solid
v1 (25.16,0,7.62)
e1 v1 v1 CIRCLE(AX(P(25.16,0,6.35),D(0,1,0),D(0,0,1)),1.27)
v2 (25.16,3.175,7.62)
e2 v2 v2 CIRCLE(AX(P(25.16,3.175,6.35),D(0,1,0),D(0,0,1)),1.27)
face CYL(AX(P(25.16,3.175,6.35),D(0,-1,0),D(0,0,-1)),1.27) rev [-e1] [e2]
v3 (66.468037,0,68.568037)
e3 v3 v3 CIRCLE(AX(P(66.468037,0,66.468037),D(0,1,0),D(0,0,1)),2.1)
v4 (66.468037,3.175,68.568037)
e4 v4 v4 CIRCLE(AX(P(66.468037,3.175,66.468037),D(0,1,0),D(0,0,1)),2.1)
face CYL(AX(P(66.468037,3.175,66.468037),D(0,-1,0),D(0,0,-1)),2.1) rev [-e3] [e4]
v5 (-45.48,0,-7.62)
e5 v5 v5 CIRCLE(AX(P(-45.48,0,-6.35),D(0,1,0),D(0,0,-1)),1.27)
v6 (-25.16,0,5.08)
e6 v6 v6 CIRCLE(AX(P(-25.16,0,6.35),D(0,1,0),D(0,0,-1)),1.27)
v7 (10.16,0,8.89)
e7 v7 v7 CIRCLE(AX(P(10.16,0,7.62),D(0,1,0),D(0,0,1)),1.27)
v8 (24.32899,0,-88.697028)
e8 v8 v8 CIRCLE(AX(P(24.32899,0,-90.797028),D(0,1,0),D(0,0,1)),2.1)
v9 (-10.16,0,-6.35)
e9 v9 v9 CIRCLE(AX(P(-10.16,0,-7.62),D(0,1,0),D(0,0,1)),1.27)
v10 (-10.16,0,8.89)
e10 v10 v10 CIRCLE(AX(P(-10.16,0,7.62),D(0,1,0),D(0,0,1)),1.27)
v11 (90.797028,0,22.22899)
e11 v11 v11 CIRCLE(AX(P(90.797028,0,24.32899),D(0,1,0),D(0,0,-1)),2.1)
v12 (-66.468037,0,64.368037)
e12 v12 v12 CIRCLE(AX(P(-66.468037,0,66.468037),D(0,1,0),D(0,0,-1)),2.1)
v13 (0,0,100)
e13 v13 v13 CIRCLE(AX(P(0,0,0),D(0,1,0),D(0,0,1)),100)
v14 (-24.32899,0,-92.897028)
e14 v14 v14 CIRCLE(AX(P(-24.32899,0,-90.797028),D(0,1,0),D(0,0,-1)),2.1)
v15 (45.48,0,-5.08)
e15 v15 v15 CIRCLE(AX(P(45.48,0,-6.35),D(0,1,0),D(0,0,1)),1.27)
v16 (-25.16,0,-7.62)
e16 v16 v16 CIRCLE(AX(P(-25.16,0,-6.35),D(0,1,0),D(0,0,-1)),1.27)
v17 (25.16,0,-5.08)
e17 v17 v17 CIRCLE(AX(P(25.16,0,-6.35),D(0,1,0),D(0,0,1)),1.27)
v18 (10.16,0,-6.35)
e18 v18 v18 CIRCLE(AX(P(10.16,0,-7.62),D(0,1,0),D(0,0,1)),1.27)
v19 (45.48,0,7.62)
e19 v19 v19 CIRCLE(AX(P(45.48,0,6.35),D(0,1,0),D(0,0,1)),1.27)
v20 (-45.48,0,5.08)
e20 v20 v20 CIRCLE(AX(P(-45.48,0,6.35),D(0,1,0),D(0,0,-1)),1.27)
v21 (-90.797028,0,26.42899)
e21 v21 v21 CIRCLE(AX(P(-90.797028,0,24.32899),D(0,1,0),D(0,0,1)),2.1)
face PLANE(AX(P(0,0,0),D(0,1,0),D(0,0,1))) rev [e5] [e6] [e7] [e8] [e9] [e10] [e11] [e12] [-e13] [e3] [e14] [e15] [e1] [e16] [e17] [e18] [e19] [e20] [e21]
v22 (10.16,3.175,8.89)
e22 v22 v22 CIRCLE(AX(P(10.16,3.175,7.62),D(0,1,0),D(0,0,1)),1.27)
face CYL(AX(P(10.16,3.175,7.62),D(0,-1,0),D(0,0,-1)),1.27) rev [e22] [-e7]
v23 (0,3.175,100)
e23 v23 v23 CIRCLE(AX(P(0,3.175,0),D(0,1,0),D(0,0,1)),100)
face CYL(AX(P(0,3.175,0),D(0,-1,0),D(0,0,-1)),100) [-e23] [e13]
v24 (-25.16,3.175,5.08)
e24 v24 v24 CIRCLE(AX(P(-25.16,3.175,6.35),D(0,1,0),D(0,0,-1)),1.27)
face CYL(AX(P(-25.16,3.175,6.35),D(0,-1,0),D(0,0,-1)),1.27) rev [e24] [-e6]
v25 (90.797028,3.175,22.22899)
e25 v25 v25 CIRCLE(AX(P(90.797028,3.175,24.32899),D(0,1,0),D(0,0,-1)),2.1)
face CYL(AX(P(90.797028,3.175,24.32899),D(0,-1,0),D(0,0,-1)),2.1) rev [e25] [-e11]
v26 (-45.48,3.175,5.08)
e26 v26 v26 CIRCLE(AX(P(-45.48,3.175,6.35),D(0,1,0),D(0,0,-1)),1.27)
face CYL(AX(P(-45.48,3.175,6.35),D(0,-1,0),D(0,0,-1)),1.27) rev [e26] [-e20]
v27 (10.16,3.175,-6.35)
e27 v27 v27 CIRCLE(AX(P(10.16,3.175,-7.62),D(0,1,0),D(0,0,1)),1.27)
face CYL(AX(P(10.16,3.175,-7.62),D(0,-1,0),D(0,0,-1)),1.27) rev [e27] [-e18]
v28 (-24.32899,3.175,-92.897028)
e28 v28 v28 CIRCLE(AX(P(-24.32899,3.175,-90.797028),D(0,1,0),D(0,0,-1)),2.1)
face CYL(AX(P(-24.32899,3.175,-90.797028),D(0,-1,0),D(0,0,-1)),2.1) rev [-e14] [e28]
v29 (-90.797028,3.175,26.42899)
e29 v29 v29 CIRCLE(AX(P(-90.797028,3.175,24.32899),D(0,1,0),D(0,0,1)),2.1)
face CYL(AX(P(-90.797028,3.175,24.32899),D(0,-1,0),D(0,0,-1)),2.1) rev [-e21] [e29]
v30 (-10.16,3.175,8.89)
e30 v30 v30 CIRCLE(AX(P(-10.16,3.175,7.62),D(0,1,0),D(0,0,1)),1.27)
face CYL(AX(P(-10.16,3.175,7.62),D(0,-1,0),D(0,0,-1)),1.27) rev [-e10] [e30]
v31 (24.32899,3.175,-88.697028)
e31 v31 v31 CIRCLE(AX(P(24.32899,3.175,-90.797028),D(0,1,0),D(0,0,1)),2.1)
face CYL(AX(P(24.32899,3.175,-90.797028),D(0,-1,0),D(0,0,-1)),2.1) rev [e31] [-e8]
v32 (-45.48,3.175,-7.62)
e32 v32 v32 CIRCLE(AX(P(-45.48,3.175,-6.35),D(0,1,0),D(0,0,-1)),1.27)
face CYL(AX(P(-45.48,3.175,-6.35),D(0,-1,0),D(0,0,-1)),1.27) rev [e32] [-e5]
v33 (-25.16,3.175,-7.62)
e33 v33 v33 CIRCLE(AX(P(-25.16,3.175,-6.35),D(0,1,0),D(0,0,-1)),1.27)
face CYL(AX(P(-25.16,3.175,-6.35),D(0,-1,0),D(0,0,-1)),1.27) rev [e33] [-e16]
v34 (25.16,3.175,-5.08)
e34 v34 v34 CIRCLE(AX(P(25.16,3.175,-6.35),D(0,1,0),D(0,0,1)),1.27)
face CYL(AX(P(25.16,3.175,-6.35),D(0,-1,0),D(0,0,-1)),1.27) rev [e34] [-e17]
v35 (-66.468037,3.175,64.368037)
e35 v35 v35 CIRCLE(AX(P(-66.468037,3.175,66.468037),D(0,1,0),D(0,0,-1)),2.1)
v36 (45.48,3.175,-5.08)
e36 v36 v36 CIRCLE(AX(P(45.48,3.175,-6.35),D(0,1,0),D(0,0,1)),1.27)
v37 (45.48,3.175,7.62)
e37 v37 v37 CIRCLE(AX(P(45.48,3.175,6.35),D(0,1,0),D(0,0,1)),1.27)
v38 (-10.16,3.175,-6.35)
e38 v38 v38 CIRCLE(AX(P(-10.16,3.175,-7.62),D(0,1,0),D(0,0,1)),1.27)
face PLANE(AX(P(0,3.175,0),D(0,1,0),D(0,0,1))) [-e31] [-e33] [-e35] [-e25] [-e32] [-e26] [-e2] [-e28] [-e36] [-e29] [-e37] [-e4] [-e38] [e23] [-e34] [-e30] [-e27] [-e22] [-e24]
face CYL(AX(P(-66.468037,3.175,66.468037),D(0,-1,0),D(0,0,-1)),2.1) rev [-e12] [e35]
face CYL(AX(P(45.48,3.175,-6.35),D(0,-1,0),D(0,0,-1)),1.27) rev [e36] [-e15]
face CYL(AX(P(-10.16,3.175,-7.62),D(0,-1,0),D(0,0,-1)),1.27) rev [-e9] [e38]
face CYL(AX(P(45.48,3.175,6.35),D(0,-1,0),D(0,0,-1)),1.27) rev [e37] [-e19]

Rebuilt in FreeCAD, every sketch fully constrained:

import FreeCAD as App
import Part
import Sketcher

V = App.Vector

doc = App.newDocument("Part")
body = doc.addObject("PartDesign::Body", "Body")

# Sketch on XZ plane
sketch1 = doc.addObject("Sketcher::SketchObject", "Sketch")
body.addObject(sketch1)
sketch1.AttachmentSupport = (doc.XZ_Plane, [""])
sketch1.MapMode = "FlatFace"
sketch1.addGeometry(Part.Circle(V(0, 0, 0), V(0, 0, 1), 100), False)
sketch1.addGeometry(Part.Circle(V(-24.3, -90.8, 0), V(0, 0, 1), 2.1), False)
sketch1.addGeometry(Part.Circle(V(-90.8, 24.3, 0), V(0, 0, 1), 2.1), False)
sketch1.addGeometry(Part.Circle(V(-66.5, 66.5, 0), V(0, 0, 1), 2.1), False)
sketch1.addGeometry(Part.Circle(V(-45.5, -6.3, 0), V(0, 0, 1), 1.3), False)
sketch1.addGeometry(Part.Circle(V(-45.5, 6.3, 0), V(0, 0, 1), 1.3), False)
sketch1.addGeometry(Part.Circle(V(-25.2, -6.3, 0), V(0, 0, 1), 1.3), False)
sketch1.addGeometry(Part.Circle(V(-25.2, 6.3, 0), V(0, 0, 1), 1.3), False)
sketch1.addGeometry(Part.Circle(V(-10.2, -7.6, 0), V(0, 0, 1), 1.3), False)
sketch1.addGeometry(Part.Circle(V(-10.2, 7.6, 0), V(0, 0, 1), 1.3), False)
sketch1.addGeometry(Part.Circle(V(24.3, -90.8, 0), V(0, 0, 1), 2.1), False)
sketch1.addGeometry(Part.Circle(V(10.2, -7.6, 0), V(0, 0, 1), 1.3), False)
sketch1.addGeometry(Part.Circle(V(10.2, 7.6, 0), V(0, 0, 1), 1.3), False)
sketch1.addGeometry(Part.Circle(V(25.2, -6.3, 0), V(0, 0, 1), 1.3), False)
sketch1.addGeometry(Part.Circle(V(25.2, 6.3, 0), V(0, 0, 1), 1.3), False)
sketch1.addGeometry(Part.Circle(V(45.5, -6.3, 0), V(0, 0, 1), 1.3), False)
sketch1.addGeometry(Part.Circle(V(45.5, 6.3, 0), V(0, 0, 1), 1.3), False)
sketch1.addGeometry(Part.Circle(V(90.8, 24.3, 0), V(0, 0, 1), 2.1), False)
sketch1.addGeometry(Part.Circle(V(66.5, 66.5, 0), V(0, 0, 1), 2.1), False)
sketch1.addConstraint(Sketcher.Constraint("Coincident", 0, 3, -1, 1))
sketch1.addConstraint(Sketcher.Constraint("Equal", 1, 2))
sketch1.addConstraint(Sketcher.Constraint("Equal", 2, 3))
sketch1.addConstraint(Sketcher.Constraint("Equal", 4, 5))
sketch1.addConstraint(Sketcher.Constraint("Equal", 5, 6))
sketch1.addConstraint(Sketcher.Constraint("Equal", 6, 7))
sketch1.addConstraint(Sketcher.Constraint("Equal", 7, 8))
sketch1.addConstraint(Sketcher.Constraint("Equal", 8, 9))
sketch1.addConstraint(Sketcher.Constraint("Equal", 3, 10))
sketch1.addConstraint(Sketcher.Constraint("Equal", 9, 11))
sketch1.addConstraint(Sketcher.Constraint("Equal", 11, 12))
sketch1.addConstraint(Sketcher.Constraint("Equal", 12, 13))
sketch1.addConstraint(Sketcher.Constraint("Equal", 13, 14))
sketch1.addConstraint(Sketcher.Constraint("Equal", 14, 15))
sketch1.addConstraint(Sketcher.Constraint("Equal", 15, 16))
sketch1.addConstraint(Sketcher.Constraint("Equal", 10, 17))
sketch1.addConstraint(Sketcher.Constraint("Equal", 17, 18))
sketch1.addConstraint(Sketcher.Constraint("Symmetric", 9, 3, 11, 3, -1, 1))
sketch1.addConstraint(Sketcher.Constraint("Symmetric", 8, 3, 12, 3, -1, 1))
sketch1.addConstraint(Sketcher.Constraint("Symmetric", 7, 3, 13, 3, -1, 1))
sketch1.addConstraint(Sketcher.Constraint("Symmetric", 6, 3, 14, 3, -1, 1))
sketch1.addConstraint(Sketcher.Constraint("Symmetric", 5, 3, 15, 3, -1, 1))
sketch1.addConstraint(Sketcher.Constraint("Symmetric", 4, 3, 16, 3, -1, 1))
sketch1.addConstraint(Sketcher.Constraint("Symmetric", 1, 3, 10, 3, -2))
sketch1.addConstraint(Sketcher.Constraint("Symmetric", 8, 3, 11, 3, -2))
sketch1.addConstraint(Sketcher.Constraint("Symmetric", 6, 3, 13, 3, -2))
sketch1.addConstraint(Sketcher.Constraint("Symmetric", 4, 3, 15, 3, -2))
sketch1.addConstraint(Sketcher.Constraint("Symmetric", 2, 3, 17, 3, -2))
sketch1.addConstraint(Sketcher.Constraint("Symmetric", 3, 3, 18, 3, -2))
sketch1.addConstraint(Sketcher.Constraint("Horizontal", 4, 3, 6, 3))
sketch1.addConstraint(Sketcher.Constraint("Diameter", 0, 200.0))
sketch1.addConstraint(Sketcher.Constraint("Diameter", 1, 4.2))
sketch1.addConstraint(Sketcher.Constraint("Diameter", 4, 2.54))
sketch1.addConstraint(Sketcher.Constraint("DistanceX", 6, 3, 8, 3, 15.0))
sketch1.addConstraint(Sketcher.Constraint("DistanceY", 4, 3, 5, 3, 12.7))
sketch1.addConstraint(Sketcher.Constraint("DistanceX", 4, 3, -1, 1, 45.48))
sketch1.addConstraint(Sketcher.Constraint("DistanceX", 6, 3, -1, 1, 25.16))
sketch1.addConstraint(Sketcher.Constraint("DistanceY", 8, 3, -1, 1, 7.62))
sketch1.addConstraint(Sketcher.Constraint("DistanceX", 1, 3, -1, 1, 24.32899))
sketch1.addConstraint(Sketcher.Constraint("DistanceY", -1, 1, 2, 3, 24.32899))
sketch1.addConstraint(Sketcher.Constraint("DistanceX", 2, 3, 3, 3, 24.32899))
sketch1.addConstraint(Sketcher.Constraint("DistanceY", 1, 3, -1, 1, 90.797028))
sketch1.addConstraint(Sketcher.Constraint("DistanceX", 2, 3, -1, 1, 90.797028))
sketch1.addConstraint(Sketcher.Constraint("DistanceY", -1, 1, 3, 3, 66.468037))
pad1 = doc.addObject("PartDesign::Pad", "Pad")
body.addObject(pad1)
pad1.Profile = sketch1
pad1.Length = 3.175
pad1.Reversed = True

doc.recompute()
